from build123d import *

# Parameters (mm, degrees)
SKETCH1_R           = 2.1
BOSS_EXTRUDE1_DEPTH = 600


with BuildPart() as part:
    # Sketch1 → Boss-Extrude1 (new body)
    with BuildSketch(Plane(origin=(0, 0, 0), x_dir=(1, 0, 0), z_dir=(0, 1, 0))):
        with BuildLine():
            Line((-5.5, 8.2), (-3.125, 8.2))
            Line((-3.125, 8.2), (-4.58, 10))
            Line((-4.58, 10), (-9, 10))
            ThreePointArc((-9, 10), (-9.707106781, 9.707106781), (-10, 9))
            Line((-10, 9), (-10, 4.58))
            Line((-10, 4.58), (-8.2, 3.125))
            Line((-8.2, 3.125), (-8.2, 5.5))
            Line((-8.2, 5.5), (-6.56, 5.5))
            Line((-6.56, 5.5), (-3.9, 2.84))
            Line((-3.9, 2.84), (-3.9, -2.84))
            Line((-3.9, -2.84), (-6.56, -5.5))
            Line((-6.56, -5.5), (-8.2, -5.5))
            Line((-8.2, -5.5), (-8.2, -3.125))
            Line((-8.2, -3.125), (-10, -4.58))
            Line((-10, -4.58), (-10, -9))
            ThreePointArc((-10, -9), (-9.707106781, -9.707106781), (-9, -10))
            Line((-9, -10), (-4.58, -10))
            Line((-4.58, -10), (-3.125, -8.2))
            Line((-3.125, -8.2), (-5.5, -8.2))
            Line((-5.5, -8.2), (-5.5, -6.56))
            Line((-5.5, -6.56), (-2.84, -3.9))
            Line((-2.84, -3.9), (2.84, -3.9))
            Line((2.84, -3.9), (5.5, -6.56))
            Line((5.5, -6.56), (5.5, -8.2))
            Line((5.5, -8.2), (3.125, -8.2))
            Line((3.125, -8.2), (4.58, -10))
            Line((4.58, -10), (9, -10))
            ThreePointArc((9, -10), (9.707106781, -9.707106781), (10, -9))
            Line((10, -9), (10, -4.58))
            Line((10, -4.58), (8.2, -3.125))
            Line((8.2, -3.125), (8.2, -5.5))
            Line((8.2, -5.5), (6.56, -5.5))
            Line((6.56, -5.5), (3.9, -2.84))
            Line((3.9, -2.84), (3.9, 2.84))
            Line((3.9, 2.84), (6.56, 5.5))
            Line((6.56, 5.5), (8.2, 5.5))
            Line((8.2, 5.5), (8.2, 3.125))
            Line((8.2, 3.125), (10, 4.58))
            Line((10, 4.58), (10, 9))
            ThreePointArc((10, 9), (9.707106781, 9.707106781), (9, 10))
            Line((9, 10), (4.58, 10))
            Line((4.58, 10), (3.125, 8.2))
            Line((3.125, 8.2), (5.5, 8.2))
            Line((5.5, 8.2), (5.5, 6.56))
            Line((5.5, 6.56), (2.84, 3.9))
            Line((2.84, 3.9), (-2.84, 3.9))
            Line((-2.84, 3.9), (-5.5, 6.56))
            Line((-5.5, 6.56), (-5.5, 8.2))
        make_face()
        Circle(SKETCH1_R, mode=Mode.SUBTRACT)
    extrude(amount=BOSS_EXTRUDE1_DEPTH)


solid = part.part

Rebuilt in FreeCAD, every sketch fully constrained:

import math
import FreeCAD as App
import Part
import Sketcher

doc = App.newDocument("Part")
body = doc.addObject("PartDesign::Body", "Body")

# Sketch on XZ plane
sketch1 = body.newObject("Sketcher::SketchObject", "Sketch")
sketch1.AttachmentSupport = (doc.getObject("XZ_Plane"), [""])
sketch1.MapMode = "FlatFace"
sketch1.addGeometry([
    Part.LineSegment(App.Vector(-5.5, -8.2, 0), App.Vector(-3.1, -8.2, 0)),  # 0
    Part.LineSegment(App.Vector(-3.1, -8.2, 0), App.Vector(-4.6, -10, 0)),  # 1
    Part.LineSegment(App.Vector(-4.6, -10, 0), App.Vector(-9, -10, 0)),  # 2
    Part.ArcOfCircle(Part.Circle(App.Vector(-9, -9, 0), App.Vector(0, 0, 1), 1), math.radians(-180), math.radians(-90)),  # 3
    Part.LineSegment(App.Vector(-10, -9, 0), App.Vector(-10, -4.6, 0)),  # 4
    Part.LineSegment(App.Vector(-10, -4.6, 0), App.Vector(-8.2, -3.1, 0)),  # 5
    Part.LineSegment(App.Vector(-8.2, -3.1, 0), App.Vector(-8.2, -5.5, 0)),  # 6
    Part.LineSegment(App.Vector(-8.2, -5.5, 0), App.Vector(-6.6, -5.5, 0)),  # 7
    Part.LineSegment(App.Vector(-6.6, -5.5, 0), App.Vector(-3.9, -2.8, 0)),  # 8
    Part.LineSegment(App.Vector(-3.9, -2.8, 0), App.Vector(-3.9, 2.8, 0)),  # 9
    Part.LineSegment(App.Vector(-3.9, 2.8, 0), App.Vector(-6.6, 5.5, 0)),  # 10
    Part.LineSegment(App.Vector(-6.6, 5.5, 0), App.Vector(-8.2, 5.5, 0)),  # 11
    Part.LineSegment(App.Vector(-8.2, 5.5, 0), App.Vector(-8.2, 3.1, 0)),  # 12
    Part.LineSegment(App.Vector(-8.2, 3.1, 0), App.Vector(-10, 4.6, 0)),  # 13
    Part.LineSegment(App.Vector(-10, 4.6, 0), App.Vector(-10, 9, 0)),  # 14
    Part.ArcOfCircle(Part.Circle(App.Vector(-9, 9, 0), App.Vector(0, 0, 1), 1), math.radians(90), math.radians(180)),  # 15
    Part.LineSegment(App.Vector(-9, 10, 0), App.Vector(-4.6, 10, 0)),  # 16
    Part.LineSegment(App.Vector(-4.6, 10, 0), App.Vector(-3.1, 8.2, 0)),  # 17
    Part.LineSegment(App.Vector(-3.1, 8.2, 0), App.Vector(-5.5, 8.2, 0)),  # 18
    Part.LineSegment(App.Vector(-5.5, 8.2, 0), App.Vector(-5.5, 6.6, 0)),  # 19
    Part.LineSegment(App.Vector(-5.5, 6.6, 0), App.Vector(-2.8, 3.9, 0)),  # 20
    Part.LineSegment(App.Vector(-2.8, 3.9, 0), App.Vector(2.8, 3.9, 0)),  # 21
    Part.LineSegment(App.Vector(2.8, 3.9, 0), App.Vector(5.5, 6.6, 0)),  # 22
    Part.LineSegment(App.Vector(5.5, 6.6, 0), App.Vector(5.5, 8.2, 0)),  # 23
    Part.LineSegment(App.Vector(5.5, 8.2, 0), App.Vector(3.1, 8.2, 0)),  # 24
    Part.LineSegment(App.Vector(3.1, 8.2, 0), App.Vector(4.6, 10, 0)),  # 25
    Part.LineSegment(App.Vector(4.6, 10, 0), App.Vector(9, 10, 0)),  # 26
    Part.ArcOfCircle(Part.Circle(App.Vector(9, 9, 0), App.Vector(0, 0, 1), 1), math.radians(0), math.radians(90)),  # 27
    Part.LineSegment(App.Vector(10, 9, 0), App.Vector(10, 4.6, 0)),  # 28
    Part.LineSegment(App.Vector(10, 4.6, 0), App.Vector(8.2, 3.1, 0)),  # 29
    Part.LineSegment(App.Vector(8.2, 3.1, 0), App.Vector(8.2, 5.5, 0)),  # 30
    Part.LineSegment(App.Vector(8.2, 5.5, 0), App.Vector(6.6, 5.5, 0)),  # 31
    Part.LineSegment(App.Vector(6.6, 5.5, 0), App.Vector(3.9, 2.8, 0)),  # 32
    Part.LineSegment(App.Vector(3.9, 2.8, 0), App.Vector(3.9, -2.8, 0)),  # 33
    Part.LineSegment(App.Vector(3.9, -2.8, 0), App.Vector(6.6, -5.5, 0)),  # 34
    Part.LineSegment(App.Vector(6.6, -5.5, 0), App.Vector(8.2, -5.5, 0)),  # 35
    Part.LineSegment(App.Vector(8.2, -5.5, 0), App.Vector(8.2, -3.1, 0)),  # 36
    Part.LineSegment(App.Vector(8.2, -3.1, 0), App.Vector(10, -4.6, 0)),  # 37
    Part.LineSegment(App.Vector(10, -4.6, 0), App.Vector(10, -9, 0)),  # 38
    Part.ArcOfCircle(Part.Circle(App.Vector(9, -9, 0), App.Vector(0, 0, 1), 1), math.radians(-90), math.radians(0)),  # 39
    Part.LineSegment(App.Vector(9, -10, 0), App.Vector(4.6, -10, 0)),  # 40
    Part.LineSegment(App.Vector(4.6, -10, 0), App.Vector(3.1, -8.2, 0)),  # 41
    Part.LineSegment(App.Vector(3.1, -8.2, 0), App.Vector(5.5, -8.2, 0)),  # 42
    Part.LineSegment(App.Vector(5.5, -8.2, 0), App.Vector(5.5, -6.6, 0)),  # 43
    Part.LineSegment(App.Vector(5.5, -6.6, 0), App.Vector(2.8, -3.9, 0)),  # 44
    Part.LineSegment(App.Vector(2.8, -3.9, 0), App.Vector(-2.8, -3.9, 0)),  # 45
    Part.LineSegment(App.Vector(-2.8, -3.9, 0), App.Vector(-5.5, -6.6, 0)),  # 46
    Part.LineSegment(App.Vector(-5.5, -6.6, 0), App.Vector(-5.5, -8.2, 0)),  # 47
    Part.Circle(App.Vector(0, 0, 0), App.Vector(0, 0, 1), 2.1),  # 48
], False)
sketch1.addConstraint([
    Sketcher.Constraint("Coincident", 0, 2, 1, 1),
    Sketcher.Constraint("Coincident", 1, 2, 2, 1),
    Sketcher.Constraint("Tangent", 2, 2, 3, 2),
    Sketcher.Constraint("Tangent", 3, 1, 4, 1),
    Sketcher.Constraint("Coincident", 4, 2, 5, 1),
    Sketcher.Constraint("Coincident", 5, 2, 6, 1),
    Sketcher.Constraint("Coincident", 6, 2, 7, 1),
    Sketcher.Constraint("Coincident", 7, 2, 8, 1),
    Sketcher.Constraint("Coincident", 8, 2, 9, 1),
    Sketcher.Constraint("Coincident", 9, 2, 10, 1),
    Sketcher.Constraint("Coincident", 10, 2, 11, 1),
    Sketcher.Constraint("Coincident", 11, 2, 12, 1),
    Sketcher.Constraint("Coincident", 12, 2, 13, 1),
    Sketcher.Constraint("Coincident", 13, 2, 14, 1),
    Sketcher.Constraint("Tangent", 14, 2, 15, 2),
    Sketcher.Constraint("Tangent", 15, 1, 16, 1),
    Sketcher.Constraint("Coincident", 16, 2, 17, 1),
    Sketcher.Constraint("Coincident", 17, 2, 18, 1),
    Sketcher.Constraint("Coincident", 18, 2, 19, 1),
    Sketcher.Constraint("Coincident", 19, 2, 20, 1),
    Sketcher.Constraint("Coincident", 20, 2, 21, 1),
    Sketcher.Constraint("Coincident", 21, 2, 22, 1),
    Sketcher.Constraint("Coincident", 22, 2, 23, 1),
    Sketcher.Constraint("Coincident", 23, 2, 24, 1),
    Sketcher.Constraint("Coincident", 24, 2, 25, 1),
    Sketcher.Constraint("Coincident", 25, 2, 26, 1),
    Sketcher.Constraint("Tangent", 26, 2, 27, 2),
    Sketcher.Constraint("Tangent", 27, 1, 28, 1),
    Sketcher.Constraint("Coincident", 28, 2, 29, 1),
    Sketcher.Constraint("Coincident", 29, 2, 30, 1),
    Sketcher.Constraint("Coincident", 30, 2, 31, 1),
    Sketcher.Constraint("Coincident", 31, 2, 32, 1),
    Sketcher.Constraint("Coincident", 32, 2, 33, 1),
    Sketcher.Constraint("Coincident", 33, 2, 34, 1),
    Sketcher.Constraint("Coincident", 34, 2, 35, 1),
    Sketcher.Constraint("Coincident", 35, 2, 36, 1),
    Sketcher.Constraint("Coincident", 36, 2, 37, 1),
    Sketcher.Constraint("Coincident", 37, 2, 38, 1),
    Sketcher.Constraint("Tangent", 38, 2, 39, 2),
    Sketcher.Constraint("Tangent", 39, 1, 40, 1),
    Sketcher.Constraint("Coincident", 40, 2, 41, 1),
    Sketcher.Constraint("Coincident", 41, 2, 42, 1),
    Sketcher.Constraint("Coincident", 42, 2, 43, 1),
    Sketcher.Constraint("Coincident", 43, 2, 44, 1),
    Sketcher.Constraint("Coincident", 44, 2, 45, 1),
    Sketcher.Constraint("Coincident", 45, 2, 46, 1),
    Sketcher.Constraint("Coincident", 46, 2, 47, 1),
    Sketcher.Constraint("Coincident", 47, 2, 0, 1),
    Sketcher.Constraint("Horizontal", 0),
    Sketcher.Constraint("Horizontal", 2),
    Sketcher.Constraint("Vertical", 4),
    Sketcher.Constraint("Vertical", 6),
    Sketcher.Constraint("Horizontal", 7),
    Sketcher.Constraint("Vertical", 9),
    Sketcher.Constraint("Horizontal", 11),
    Sketcher.Constraint("Vertical", 12),
    Sketcher.Constraint("Vertical", 14),
    Sketcher.Constraint("Horizontal", 16),
    Sketcher.Constraint("Horizontal", 18),
    Sketcher.Constraint("Vertical", 19),
    Sketcher.Constraint("Horizontal", 21),
    Sketcher.Constraint("Vertical", 23),
    Sketcher.Constraint("Horizontal", 24),
    Sketcher.Constraint("Horizontal", 26),
    Sketcher.Constraint("Vertical", 28),
    Sketcher.Constraint("Vertical", 30),
    Sketcher.Constraint("Horizontal", 31),
    Sketcher.Constraint("Vertical", 33),
    Sketcher.Constraint("Horizontal", 35),
    Sketcher.Constraint("Vertical", 36),
    Sketcher.Constraint("Vertical", 38),
    Sketcher.Constraint("Horizontal", 40),
    Sketcher.Constraint("Horizontal", 42),
    Sketcher.Constraint("Vertical", 43),
    Sketcher.Constraint("Horizontal", 45),
    Sketcher.Constraint("Vertical", 47),
    Sketcher.Constraint("Coincident", 48, 3, -1, 1),
    Sketcher.Constraint("Equal", 3, 15),
    Sketcher.Constraint("Equal", 15, 27),
    Sketcher.Constraint("Equal", 27, 39),
    Sketcher.Constraint("Symmetric", 3, 3, 27, 3, -1, 1),
    Sketcher.Constraint("Symmetric", 15, 3, 39, 3, -1, 1),
    Sketcher.Constraint("Symmetric", 0, 2, 24, 2, -1, 1),
    Sketcher.Constraint("Symmetric", 5, 2, 29, 2, -1, 1),
    Sketcher.Constraint("Symmetric", 7, 2, 31, 2, -1, 1),
    Sketcher.Constraint("Symmetric", 8, 2, 32, 2, -1, 1),
    Sketcher.Constraint("Symmetric", 10, 2, 34, 2, -1, 1),
    Sketcher.Constraint("Symmetric", 12, 2, 36, 2, -1, 1),
    Sketcher.Constraint("Symmetric", 17, 2, 41, 2, -1, 1),
    Sketcher.Constraint("Symmetric", 19, 2, 43, 2, -1, 1),
    Sketcher.Constraint("Symmetric", 20, 2, 44, 2, -1, 1),
    Sketcher.Constraint("Symmetric", 22, 2, 46, 2, -1, 1),
    Sketcher.Constraint("Symmetric", 15, 3, 27, 3, -2),
    Sketcher.Constraint("Symmetric", 19, 2, 22, 2, -2),
    Sketcher.Constraint("Symmetric", 17, 2, 24, 2, -2),
    Sketcher.Constraint("Symmetric", 12, 2, 29, 2, -2),
    Sketcher.Constraint("Symmetric", 10, 2, 31, 2, -2),
    Sketcher.Constraint("Perpendicular", 8, 10),
    Sketcher.Constraint("Perpendicular", 1, 13),
    Sketcher.Constraint("Perpendicular", 5, 17),
    Sketcher.Constraint("Parallel", 10, 20),
    Sketcher.Constraint("Perpendicular", 20, 22),
    Sketcher.Constraint("Perpendicular", 13, 25),
    Sketcher.Constraint("Perpendicular", 17, 29),
    Sketcher.Constraint("Perpendicular", 32, 34),
    Sketcher.Constraint("Perpendicular", 25, 37),
    Sketcher.Constraint("Perpendicular", 29, 41),
    Sketcher.Constraint("Perpendicular", 44, 46),
    Sketcher.Constraint("Horizontal", 13, 2, 28, 2),
    Sketcher.Constraint("Horizontal", 9, 2, 32, 2),
    Sketcher.Constraint("Equal", 40, 4),
    Sketcher.Constraint("Equal", 42, 6),
    Sketcher.Constraint("Equal", 45, 9),
    Sketcher.Constraint("Equal", 35, 19),
    Sketcher.Constraint("Equal", 1, 5),
    Sketcher.Constraint("Equal", 10, 20),
    Sketcher.Constraint("Radius", 3, 1.0),
    Sketcher.Constraint("Diameter", 48, 4.2),
    Sketcher.Constraint("DistanceX", 3, 3, -1, 1, 9.0),
    Sketcher.Constraint("DistanceX", 2, 2, 2, 1, 4.42),
    Sketcher.Constraint("DistanceX", 7, 1, 7, 2, 1.64),
    Sketcher.Constraint("DistanceX", 21, 1, 21, 2, 5.68),
    Sketcher.Constraint("DistanceY", 0, 2, -1, 1, 8.2),
    Sketcher.Constraint("DistanceY", 6, 2, -1, 1, 5.5),
    Sketcher.Constraint("DistanceX", 0, 1, 0, 2, 2.375),
])
pad1 = body.newObject("PartDesign::Pad", "Pad")
pad1.Profile = sketch1
pad1.Length = 600
pad1.Reversed = True

doc.recompute()
